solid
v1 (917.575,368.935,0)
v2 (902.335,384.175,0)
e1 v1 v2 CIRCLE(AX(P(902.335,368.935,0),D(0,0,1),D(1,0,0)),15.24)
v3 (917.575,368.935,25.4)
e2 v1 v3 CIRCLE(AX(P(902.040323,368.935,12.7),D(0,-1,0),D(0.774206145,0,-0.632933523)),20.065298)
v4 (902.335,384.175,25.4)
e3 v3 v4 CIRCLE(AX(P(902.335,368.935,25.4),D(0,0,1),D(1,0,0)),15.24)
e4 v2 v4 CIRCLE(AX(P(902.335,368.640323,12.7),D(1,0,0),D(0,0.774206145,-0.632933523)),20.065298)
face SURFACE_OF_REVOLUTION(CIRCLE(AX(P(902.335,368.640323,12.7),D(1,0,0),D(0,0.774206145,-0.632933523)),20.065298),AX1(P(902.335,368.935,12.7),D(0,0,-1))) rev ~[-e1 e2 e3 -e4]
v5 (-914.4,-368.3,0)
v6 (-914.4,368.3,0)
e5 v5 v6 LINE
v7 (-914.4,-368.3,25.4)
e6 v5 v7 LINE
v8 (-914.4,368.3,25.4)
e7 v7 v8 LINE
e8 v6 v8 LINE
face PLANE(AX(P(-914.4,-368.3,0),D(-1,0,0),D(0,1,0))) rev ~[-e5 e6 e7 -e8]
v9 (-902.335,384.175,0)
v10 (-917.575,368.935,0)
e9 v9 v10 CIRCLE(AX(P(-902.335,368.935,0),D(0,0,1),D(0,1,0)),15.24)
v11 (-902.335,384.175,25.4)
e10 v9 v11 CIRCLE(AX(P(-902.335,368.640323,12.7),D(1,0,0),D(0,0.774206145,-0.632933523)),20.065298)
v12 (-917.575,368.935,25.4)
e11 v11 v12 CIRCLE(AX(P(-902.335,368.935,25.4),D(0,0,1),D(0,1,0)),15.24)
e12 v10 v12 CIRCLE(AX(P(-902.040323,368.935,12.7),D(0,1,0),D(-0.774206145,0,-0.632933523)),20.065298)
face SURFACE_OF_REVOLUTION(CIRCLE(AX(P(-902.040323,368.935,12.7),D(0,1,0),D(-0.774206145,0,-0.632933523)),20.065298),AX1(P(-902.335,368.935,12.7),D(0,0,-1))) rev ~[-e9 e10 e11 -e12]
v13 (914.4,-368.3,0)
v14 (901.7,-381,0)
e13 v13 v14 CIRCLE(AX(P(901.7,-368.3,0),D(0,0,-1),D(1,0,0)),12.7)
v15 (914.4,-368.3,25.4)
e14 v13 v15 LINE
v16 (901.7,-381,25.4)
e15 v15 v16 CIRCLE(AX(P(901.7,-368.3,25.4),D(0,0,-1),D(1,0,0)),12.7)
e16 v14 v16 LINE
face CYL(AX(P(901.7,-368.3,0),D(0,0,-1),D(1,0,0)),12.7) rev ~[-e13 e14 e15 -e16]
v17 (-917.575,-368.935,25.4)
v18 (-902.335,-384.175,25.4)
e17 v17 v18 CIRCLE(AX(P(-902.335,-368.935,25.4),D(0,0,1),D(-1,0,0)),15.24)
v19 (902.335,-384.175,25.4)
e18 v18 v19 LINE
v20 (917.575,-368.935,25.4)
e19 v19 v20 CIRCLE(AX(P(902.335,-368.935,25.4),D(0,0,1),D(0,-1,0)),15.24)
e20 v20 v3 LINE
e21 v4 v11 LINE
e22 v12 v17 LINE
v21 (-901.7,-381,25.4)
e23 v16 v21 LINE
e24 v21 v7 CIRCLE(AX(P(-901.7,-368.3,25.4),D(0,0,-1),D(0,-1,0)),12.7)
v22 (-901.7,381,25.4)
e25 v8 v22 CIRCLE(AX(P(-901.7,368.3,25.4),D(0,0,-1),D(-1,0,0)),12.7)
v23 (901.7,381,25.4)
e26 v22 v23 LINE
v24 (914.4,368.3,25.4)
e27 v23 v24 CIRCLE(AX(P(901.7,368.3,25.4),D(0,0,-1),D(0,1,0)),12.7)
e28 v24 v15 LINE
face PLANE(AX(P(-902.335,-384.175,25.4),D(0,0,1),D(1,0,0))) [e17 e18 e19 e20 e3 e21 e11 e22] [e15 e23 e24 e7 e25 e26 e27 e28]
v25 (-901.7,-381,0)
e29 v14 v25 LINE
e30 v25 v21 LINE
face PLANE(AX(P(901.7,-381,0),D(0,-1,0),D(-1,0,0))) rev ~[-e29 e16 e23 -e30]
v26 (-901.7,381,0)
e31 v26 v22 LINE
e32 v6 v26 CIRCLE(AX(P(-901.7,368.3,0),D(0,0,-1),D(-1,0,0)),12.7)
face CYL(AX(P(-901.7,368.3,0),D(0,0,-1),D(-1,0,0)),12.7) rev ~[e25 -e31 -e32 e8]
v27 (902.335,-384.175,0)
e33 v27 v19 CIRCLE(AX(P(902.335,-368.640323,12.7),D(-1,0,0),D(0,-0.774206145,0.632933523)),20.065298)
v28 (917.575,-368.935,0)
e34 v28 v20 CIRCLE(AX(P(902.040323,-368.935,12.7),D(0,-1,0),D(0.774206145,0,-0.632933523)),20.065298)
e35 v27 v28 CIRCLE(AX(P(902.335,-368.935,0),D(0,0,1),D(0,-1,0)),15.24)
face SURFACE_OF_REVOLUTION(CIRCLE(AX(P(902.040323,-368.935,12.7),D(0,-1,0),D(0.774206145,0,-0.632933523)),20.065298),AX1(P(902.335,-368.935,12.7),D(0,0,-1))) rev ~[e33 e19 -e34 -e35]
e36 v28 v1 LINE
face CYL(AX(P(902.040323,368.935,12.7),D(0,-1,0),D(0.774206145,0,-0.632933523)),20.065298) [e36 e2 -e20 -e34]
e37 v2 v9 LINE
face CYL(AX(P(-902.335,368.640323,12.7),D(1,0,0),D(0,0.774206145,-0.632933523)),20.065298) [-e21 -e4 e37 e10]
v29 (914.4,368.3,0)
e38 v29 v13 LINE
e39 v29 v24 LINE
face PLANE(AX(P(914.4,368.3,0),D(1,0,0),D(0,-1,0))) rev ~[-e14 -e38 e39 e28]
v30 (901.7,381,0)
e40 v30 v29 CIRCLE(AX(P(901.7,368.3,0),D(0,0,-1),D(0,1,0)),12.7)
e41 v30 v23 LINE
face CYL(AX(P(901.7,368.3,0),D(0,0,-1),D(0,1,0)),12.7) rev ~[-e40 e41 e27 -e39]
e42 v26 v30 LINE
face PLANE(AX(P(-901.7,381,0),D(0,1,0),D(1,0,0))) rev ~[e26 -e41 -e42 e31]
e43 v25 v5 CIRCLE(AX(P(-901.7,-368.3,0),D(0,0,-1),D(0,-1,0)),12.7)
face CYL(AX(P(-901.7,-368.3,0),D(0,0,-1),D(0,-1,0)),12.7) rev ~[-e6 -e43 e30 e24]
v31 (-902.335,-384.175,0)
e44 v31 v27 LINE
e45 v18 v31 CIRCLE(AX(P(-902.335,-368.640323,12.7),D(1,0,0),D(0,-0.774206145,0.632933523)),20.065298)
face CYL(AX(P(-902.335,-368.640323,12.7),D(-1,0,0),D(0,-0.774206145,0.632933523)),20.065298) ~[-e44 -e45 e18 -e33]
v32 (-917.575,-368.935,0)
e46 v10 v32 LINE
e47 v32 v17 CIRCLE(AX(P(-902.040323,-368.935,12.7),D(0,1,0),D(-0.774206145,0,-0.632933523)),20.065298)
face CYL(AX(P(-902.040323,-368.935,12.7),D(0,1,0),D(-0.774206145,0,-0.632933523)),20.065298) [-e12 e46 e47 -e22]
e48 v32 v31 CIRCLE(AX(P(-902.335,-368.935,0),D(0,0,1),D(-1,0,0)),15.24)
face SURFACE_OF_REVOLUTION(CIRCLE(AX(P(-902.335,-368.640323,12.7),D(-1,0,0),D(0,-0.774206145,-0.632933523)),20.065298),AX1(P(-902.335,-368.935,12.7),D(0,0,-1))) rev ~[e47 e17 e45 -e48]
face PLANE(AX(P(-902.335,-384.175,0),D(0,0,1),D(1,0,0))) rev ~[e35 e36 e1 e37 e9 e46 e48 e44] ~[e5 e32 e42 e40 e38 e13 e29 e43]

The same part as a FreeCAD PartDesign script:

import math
import FreeCAD as App
import Part
import Sketcher
Q = App.Units.Quantity

doc = App.newDocument("Part")
params = doc.addObject("Spreadsheet::Sheet", "Params")
for row, (alias, value) in enumerate([
    ("sketch1_radius", "0.6 in"),
    ("sketch1_radius2", "0.5 in"),
    ("sketch1_width", "71 in"),
    ("sketch1_height", "29 in"),
    ("sketch1_width2", "71.05 in"),
    ("pad1_length", "1 in"),
    ("sketch2_height", "1 in"),
    ("sketch2_width", "71.05 in"),
    ("pad2_length", "0.25 in"),
    ("sketch3_height", "1 in"),
    ("sketch3_width", "0.25 in"),
    ("pocket1_length", "100 in"),
    ("sketch4_height", "1 in"),
    ("sketch5_radius", "0.6 in"),
    ("sketch5_width", "71.05 in"),
    ("sketch5_height", "29.05 in"),
], start=1):
    params.set(f"A{row}", alias)
    params.set(f"B{row}", "=" + value)
    params.setAlias(f"B{row}", alias)

body = doc.addObject("PartDesign::Body", "Body")

# Sketch on XY plane
sketch1 = body.newObject("Sketcher::SketchObject", "Sketch")
sketch1.AttachmentSupport = (doc.getObject("XY_Plane"), [""])
sketch1.MapMode = "FlatFace"
sketch1.addGeometry([
    Part.ArcOfCircle(Part.Circle(App.Vector(902, 369, 0), App.Vector(0, 0, 1), 15), math.radians(0), math.radians(90)),  # 0
    Part.LineSegment(App.Vector(902, 384, 0), App.Vector(-902, 384, 0)),  # 1
    Part.ArcOfCircle(Part.Circle(App.Vector(-902, 369, 0), App.Vector(0, 0, 1), 15), math.radians(90), math.radians(180)),  # 2
    Part.LineSegment(App.Vector(-918, 369, 0), App.Vector(-918, -369, 0)),  # 3
    Part.ArcOfCircle(Part.Circle(App.Vector(-902, -369, 0), App.Vector(0, 0, 1), 15), math.radians(180), math.radians(270)),  # 4
    Part.LineSegment(App.Vector(-902, -384, 0), App.Vector(902, -384, 0)),  # 5
    Part.ArcOfCircle(Part.Circle(App.Vector(902, -369, 0), App.Vector(0, 0, 1), 15), math.radians(-90), math.radians(0)),  # 6
    Part.LineSegment(App.Vector(918, -369, 0), App.Vector(918, 369, 0)),  # 7
    Part.LineSegment(App.Vector(914, 368, 0), App.Vector(914, -368, 0)),  # 8
    Part.ArcOfCircle(Part.Circle(App.Vector(902, -368, 0), App.Vector(0, 0, 1), 13), math.radians(-90), math.radians(0)),  # 9
    Part.LineSegment(App.Vector(902, -381, 0), App.Vector(-902, -381, 0)),  # 10
    Part.ArcOfCircle(Part.Circle(App.Vector(-902, -368, 0), App.Vector(0, 0, 1), 13), math.radians(180), math.radians(270)),  # 11
    Part.LineSegment(App.Vector(-914, -368, 0), App.Vector(-914, 368, 0)),  # 12
    Part.ArcOfCircle(Part.Circle(App.Vector(-902, 368, 0), App.Vector(0, 0, 1), 13), math.radians(90), math.radians(180)),  # 13
    Part.LineSegment(App.Vector(-902, 381, 0), App.Vector(902, 381, 0)),  # 14
    Part.ArcOfCircle(Part.Circle(App.Vector(902, 368, 0), App.Vector(0, 0, 1), 13), math.radians(0), math.radians(90)),  # 15
], False)
sketch1.addConstraint([
    Sketcher.Constraint("Tangent", 0, 2, 1, 1),
    Sketcher.Constraint("Tangent", 1, 2, 2, 1),
    Sketcher.Constraint("Tangent", 2, 2, 3, 1),
    Sketcher.Constraint("Tangent", 3, 2, 4, 1),
    Sketcher.Constraint("Tangent", 4, 2, 5, 1),
    Sketcher.Constraint("Tangent", 5, 2, 6, 1),
    Sketcher.Constraint("Tangent", 6, 2, 7, 1),
    Sketcher.Constraint("Tangent", 7, 2, 0, 1),
    Sketcher.Constraint("Tangent", 8, 2, 9, 2),
    Sketcher.Constraint("Tangent", 9, 1, 10, 1),
    Sketcher.Constraint("Tangent", 10, 2, 11, 2),
    Sketcher.Constraint("Tangent", 11, 1, 12, 1),
    Sketcher.Constraint("Tangent", 12, 2, 13, 2),
    Sketcher.Constraint("Tangent", 13, 1, 14, 1),
    Sketcher.Constraint("Tangent", 14, 2, 15, 2),
    Sketcher.Constraint("Tangent", 15, 1, 8, 1),
    Sketcher.Constraint("Horizontal", 1),
    Sketcher.Constraint("Vertical", 3),
    Sketcher.Constraint("Horizontal", 5),
    Sketcher.Constraint("Vertical", 7),
    Sketcher.Constraint("Vertical", 8),
    Sketcher.Constraint("Horizontal", 10),
    Sketcher.Constraint("Vertical", 12),
    Sketcher.Constraint("Horizontal", 14),
    Sketcher.Constraint("Equal", 0, 2),
    Sketcher.Constraint("Equal", 2, 4),
    Sketcher.Constraint("Equal", 4, 6),
    Sketcher.Constraint("Equal", 9, 11),
    Sketcher.Constraint("Equal", 11, 13),
    Sketcher.Constraint("Equal", 13, 15),
    Sketcher.Constraint("Symmetric", 0, 3, 4, 3, -1, 1),
    Sketcher.Constraint("Symmetric", 9, 3, 13, 3, -1, 1),
    Sketcher.Constraint("Radius", 0, Q("0.6 in")),
    Sketcher.Constraint("Radius", 9, Q("0.5 in")),
    Sketcher.Constraint("DistanceX", 10, 2, 10, 1, Q("71 in")),
    Sketcher.Constraint("DistanceY", 8, 2, 8, 1, Q("29 in")),
    Sketcher.Constraint("DistanceX", 1, 2, 1, 1, Q("71.05 in")),
    Sketcher.Constraint("DistanceY", 3, 2, 3, 1, Q("29.05 in")),
])
sketch1.setExpression("Constraints[32]", "Params.sketch1_radius")
sketch1.setExpression("Constraints[33]", "Params.sketch1_radius2")
sketch1.setExpression("Constraints[34]", "Params.sketch1_width")
sketch1.setExpression("Constraints[35]", "Params.sketch1_height")
sketch1.setExpression("Constraints[36]", "Params.sketch1_width2")
pad1 = body.newObject("PartDesign::Pad", "Pad")
pad1.Profile = sketch1
pad1.setExpression("Length", "Params.pad1_length")

# Sketch on XZ plane
sketch2 = body.newObject("Sketcher::SketchObject", "Sketch001")
sketch2.AttachmentSupport = (doc.getObject("XZ_Plane"), [""])
sketch2.MapMode = "FlatFace"
sketch2.AttachmentOffset = App.Placement(App.Vector(0, 0, 15.125 * 25.4), App.Rotation())
sketch2.addGeometry([
    Part.LineSegment(App.Vector(-902, 25, 0), App.Vector(-902, 0, 0)),
    Part.LineSegment(App.Vector(-902, 0, 0), App.Vector(902, 0, 0)),
    Part.LineSegment(App.Vector(902, 0, 0), App.Vector(902, 25, 0)),
    Part.LineSegment(App.Vector(902, 25, 0), App.Vector(-902, 25, 0)),
], False)
sketch2.addConstraint([
    Sketcher.Constraint("Coincident", 0, 2, 1, 1),
    Sketcher.Constraint("Coincident", 1, 2, 2, 1),
    Sketcher.Constraint("Coincident", 2, 2, 3, 1),
    Sketcher.Constraint("Coincident", 3, 2, 0, 1),
    Sketcher.Constraint("Vertical", 0),
    Sketcher.Constraint("Horizontal", 1),
    Sketcher.Constraint("Vertical", 2),
    Sketcher.Constraint("Horizontal", 3),
    Sketcher.Constraint("Symmetric", 0, 2, 1, 2, -1, 1),
    Sketcher.Constraint("DistanceY", 0, 2, 0, 1, Q("1 in")),
    Sketcher.Constraint("DistanceX", 1, 1, 1, 2, Q("71.05 in")),
])
sketch2.setExpression("Constraints[9]", "Params.sketch2_height")
sketch2.setExpression("Constraints[10]", "Params.sketch2_width")
pad2 = body.newObject("PartDesign::Pad", "Pad001")
pad2.Profile = sketch2
pad2.setExpression("Length", "Params.pad2_length")

# Sketch on YZ plane
sketch3 = body.newObject("Sketcher::SketchObject", "Sketch002")
sketch3.AttachmentSupport = (doc.getObject("YZ_Plane"), [""])
sketch3.MapMode = "FlatFace"
sketch3.AttachmentOffset = App.Placement(App.Vector(0, 0, -35.525 * 25.4), App.Rotation())
sketch3.addGeometry([
    Part.ArcOfCircle(Part.Circle(App.Vector(-369, 13, 0), App.Vector(0, 0, 1), 20), math.radians(141), math.radians(219)),
    Part.LineSegment(App.Vector(-384, 0, 0), App.Vector(-391, 0, 0)),
    Part.LineSegment(App.Vector(-391, 0, 0), App.Vector(-391, 25, 0)),
    Part.LineSegment(App.Vector(-391, 25, 0), App.Vector(-384, 25, 0)),
], False)
sketch3.addConstraint([
    Sketcher.Constraint("Coincident", 0, 2, 1, 1),
    Sketcher.Constraint("Coincident", 1, 2, 2, 1),
    Sketcher.Constraint("Coincident", 2, 2, 3, 1),
    Sketcher.Constraint("Coincident", 3, 2, 0, 1),
    Sketcher.Constraint("Horizontal", 1),
    Sketcher.Constraint("Vertical", 2),
    Sketcher.Constraint("Horizontal", 3),
    Sketcher.Constraint("PointOnObject", 0, 2, -1),
    Sketcher.Constraint("Vertical", 0, 2, 3, 2),
    Sketcher.Constraint("DistanceY", 2, 1, 2, 2, Q("1 in")),
    Sketcher.Constraint("DistanceX", 1, 2, 1, 1, Q("0.25 in")),
    Sketcher.Constraint("Radius", 0, 20.065298),
    Sketcher.Constraint("DistanceX", 0, 2, -1, 1, Q("15.125 in")),
])
sketch3.setExpression("Constraints[9]", "Params.sketch3_height")
sketch3.setExpression("Constraints[10]", "Params.sketch3_width")
pocket1 = body.newObject("PartDesign::Pocket", "Pocket")
pocket1.Profile = sketch3
pocket1.setExpression("Length", "Params.pocket1_length")
pocket1.Reversed = True

# Sketch on YZ plane
sketch4 = body.newObject("Sketcher::SketchObject", "Sketch003")
sketch4.AttachmentSupport = (doc.getObject("YZ_Plane"), [""])
sketch4.MapMode = "FlatFace"
sketch4.AttachmentOffset = App.Placement(App.Vector(0, 0, -35.525 * 25.4), App.Rotation())
sketch4.addGeometry([
    Part.LineSegment(App.Vector(-384, 25, 0), App.Vector(-384, 0, 0)),
    Part.ArcOfCircle(Part.Circle(App.Vector(-369, 13, 0), App.Vector(0, 0, 1), 20), math.radians(141), math.radians(219)),
], False)
sketch4.addConstraint([
    Sketcher.Constraint("Coincident", 0, 1, 1, 1),
    Sketcher.Constraint("Coincident", 1, 2, 0, 2),
    Sketcher.Constraint("Vertical", 0),
    Sketcher.Constraint("PointOnObject", 1, 2, -1),
    Sketcher.Constraint("DistanceY", 0, 2, 0, 1, Q("1 in")),
    Sketcher.Constraint("Radius", 1, 20.065298),
    Sketcher.Constraint("DistanceX", 0, 1, -1, 1, Q("15.125 in")),
])
sketch4.setExpression("Constraints[4]", "Params.sketch4_height")

# Sketch on XY plane
sketch5 = body.newObject("Sketcher::SketchObject", "Sketch004")
sketch5.AttachmentSupport = (doc.getObject("XY_Plane"), [""])
sketch5.MapMode = "FlatFace"
sketch5.AttachmentOffset = App.Placement(App.Vector(0, 0, 1 * 25.4), App.Rotation())
sketch5.addGeometry([
    Part.ArcOfCircle(Part.Circle(App.Vector(-902, -369, 0), App.Vector(0, 0, 1), 15), math.radians(180), math.radians(270)),  # 0
    Part.LineSegment(App.Vector(-918, -369, 0), App.Vector(-918, 369, 0)),  # 1
    Part.ArcOfCircle(Part.Circle(App.Vector(-902, 369, 0), App.Vector(0, 0, 1), 15), math.radians(90), math.radians(180)),  # 2
    Part.LineSegment(App.Vector(-902, 384, 0), App.Vector(902, 384, 0)),  # 3
    Part.ArcOfCircle(Part.Circle(App.Vector(902, 369, 0), App.Vector(0, 0, 1), 15), math.radians(0), math.radians(90)),  # 4
    Part.LineSegment(App.Vector(918, 369, 0), App.Vector(918, -369, 0)),  # 5
    Part.ArcOfCircle(Part.Circle(App.Vector(902, -369, 0), App.Vector(0, 0, 1), 15), math.radians(-90), math.radians(0)),  # 6
    Part.LineSegment(App.Vector(902, -384, 0), App.Vector(-902, -384, 0)),  # 7
], False)
sketch5.addConstraint([
    Sketcher.Constraint("Tangent", 0, 1, 1, 1),
    Sketcher.Constraint("Tangent", 1, 2, 2, 2),
    Sketcher.Constraint("Tangent", 2, 1, 3, 1),
    Sketcher.Constraint("Tangent", 3, 2, 4, 2),
    Sketcher.Constraint("Tangent", 4, 1, 5, 1),
    Sketcher.Constraint("Tangent", 5, 2, 6, 2),
    Sketcher.Constraint("Tangent", 6, 1, 7, 1),
    Sketcher.Constraint("Tangent", 7, 2, 0, 2),
    Sketcher.Constraint("Vertical", 1),
    Sketcher.Constraint("Horizontal", 3),
    Sketcher.Constraint("Vertical", 5),
    Sketcher.Constraint("Horizontal", 7),
    Sketcher.Constraint("Equal", 0, 2),
    Sketcher.Constraint("Equal", 2, 4),
    Sketcher.Constraint("Equal", 4, 6),
    Sketcher.Constraint("Symmetric", 0, 3, 4, 3, -1, 1),
    Sketcher.Constraint("Radius", 0, Q("0.6 in")),
    Sketcher.Constraint("DistanceX", 3, 1, 3, 2, Q("71.05 in")),
    Sketcher.Constraint("DistanceY", 1, 1, 1, 2, Q("29.05 in")),
])
sketch5.setExpression("Constraints[16]", "Params.sketch5_radius")
sketch5.setExpression("Constraints[17]", "Params.sketch5_width")
sketch5.setExpression("Constraints[18]", "Params.sketch5_height")
doc.recompute()

additivepipe = body.newObject("PartDesign::AdditivePipe", "AdditivePipe")
additivepipe.Profile = sketch4
additivepipe.Spine = (sketch5, ["Edge1", "Edge2", "Edge3", "Edge4", "Edge5", "Edge6", "Edge7", "Edge8"])

doc.recompute()
